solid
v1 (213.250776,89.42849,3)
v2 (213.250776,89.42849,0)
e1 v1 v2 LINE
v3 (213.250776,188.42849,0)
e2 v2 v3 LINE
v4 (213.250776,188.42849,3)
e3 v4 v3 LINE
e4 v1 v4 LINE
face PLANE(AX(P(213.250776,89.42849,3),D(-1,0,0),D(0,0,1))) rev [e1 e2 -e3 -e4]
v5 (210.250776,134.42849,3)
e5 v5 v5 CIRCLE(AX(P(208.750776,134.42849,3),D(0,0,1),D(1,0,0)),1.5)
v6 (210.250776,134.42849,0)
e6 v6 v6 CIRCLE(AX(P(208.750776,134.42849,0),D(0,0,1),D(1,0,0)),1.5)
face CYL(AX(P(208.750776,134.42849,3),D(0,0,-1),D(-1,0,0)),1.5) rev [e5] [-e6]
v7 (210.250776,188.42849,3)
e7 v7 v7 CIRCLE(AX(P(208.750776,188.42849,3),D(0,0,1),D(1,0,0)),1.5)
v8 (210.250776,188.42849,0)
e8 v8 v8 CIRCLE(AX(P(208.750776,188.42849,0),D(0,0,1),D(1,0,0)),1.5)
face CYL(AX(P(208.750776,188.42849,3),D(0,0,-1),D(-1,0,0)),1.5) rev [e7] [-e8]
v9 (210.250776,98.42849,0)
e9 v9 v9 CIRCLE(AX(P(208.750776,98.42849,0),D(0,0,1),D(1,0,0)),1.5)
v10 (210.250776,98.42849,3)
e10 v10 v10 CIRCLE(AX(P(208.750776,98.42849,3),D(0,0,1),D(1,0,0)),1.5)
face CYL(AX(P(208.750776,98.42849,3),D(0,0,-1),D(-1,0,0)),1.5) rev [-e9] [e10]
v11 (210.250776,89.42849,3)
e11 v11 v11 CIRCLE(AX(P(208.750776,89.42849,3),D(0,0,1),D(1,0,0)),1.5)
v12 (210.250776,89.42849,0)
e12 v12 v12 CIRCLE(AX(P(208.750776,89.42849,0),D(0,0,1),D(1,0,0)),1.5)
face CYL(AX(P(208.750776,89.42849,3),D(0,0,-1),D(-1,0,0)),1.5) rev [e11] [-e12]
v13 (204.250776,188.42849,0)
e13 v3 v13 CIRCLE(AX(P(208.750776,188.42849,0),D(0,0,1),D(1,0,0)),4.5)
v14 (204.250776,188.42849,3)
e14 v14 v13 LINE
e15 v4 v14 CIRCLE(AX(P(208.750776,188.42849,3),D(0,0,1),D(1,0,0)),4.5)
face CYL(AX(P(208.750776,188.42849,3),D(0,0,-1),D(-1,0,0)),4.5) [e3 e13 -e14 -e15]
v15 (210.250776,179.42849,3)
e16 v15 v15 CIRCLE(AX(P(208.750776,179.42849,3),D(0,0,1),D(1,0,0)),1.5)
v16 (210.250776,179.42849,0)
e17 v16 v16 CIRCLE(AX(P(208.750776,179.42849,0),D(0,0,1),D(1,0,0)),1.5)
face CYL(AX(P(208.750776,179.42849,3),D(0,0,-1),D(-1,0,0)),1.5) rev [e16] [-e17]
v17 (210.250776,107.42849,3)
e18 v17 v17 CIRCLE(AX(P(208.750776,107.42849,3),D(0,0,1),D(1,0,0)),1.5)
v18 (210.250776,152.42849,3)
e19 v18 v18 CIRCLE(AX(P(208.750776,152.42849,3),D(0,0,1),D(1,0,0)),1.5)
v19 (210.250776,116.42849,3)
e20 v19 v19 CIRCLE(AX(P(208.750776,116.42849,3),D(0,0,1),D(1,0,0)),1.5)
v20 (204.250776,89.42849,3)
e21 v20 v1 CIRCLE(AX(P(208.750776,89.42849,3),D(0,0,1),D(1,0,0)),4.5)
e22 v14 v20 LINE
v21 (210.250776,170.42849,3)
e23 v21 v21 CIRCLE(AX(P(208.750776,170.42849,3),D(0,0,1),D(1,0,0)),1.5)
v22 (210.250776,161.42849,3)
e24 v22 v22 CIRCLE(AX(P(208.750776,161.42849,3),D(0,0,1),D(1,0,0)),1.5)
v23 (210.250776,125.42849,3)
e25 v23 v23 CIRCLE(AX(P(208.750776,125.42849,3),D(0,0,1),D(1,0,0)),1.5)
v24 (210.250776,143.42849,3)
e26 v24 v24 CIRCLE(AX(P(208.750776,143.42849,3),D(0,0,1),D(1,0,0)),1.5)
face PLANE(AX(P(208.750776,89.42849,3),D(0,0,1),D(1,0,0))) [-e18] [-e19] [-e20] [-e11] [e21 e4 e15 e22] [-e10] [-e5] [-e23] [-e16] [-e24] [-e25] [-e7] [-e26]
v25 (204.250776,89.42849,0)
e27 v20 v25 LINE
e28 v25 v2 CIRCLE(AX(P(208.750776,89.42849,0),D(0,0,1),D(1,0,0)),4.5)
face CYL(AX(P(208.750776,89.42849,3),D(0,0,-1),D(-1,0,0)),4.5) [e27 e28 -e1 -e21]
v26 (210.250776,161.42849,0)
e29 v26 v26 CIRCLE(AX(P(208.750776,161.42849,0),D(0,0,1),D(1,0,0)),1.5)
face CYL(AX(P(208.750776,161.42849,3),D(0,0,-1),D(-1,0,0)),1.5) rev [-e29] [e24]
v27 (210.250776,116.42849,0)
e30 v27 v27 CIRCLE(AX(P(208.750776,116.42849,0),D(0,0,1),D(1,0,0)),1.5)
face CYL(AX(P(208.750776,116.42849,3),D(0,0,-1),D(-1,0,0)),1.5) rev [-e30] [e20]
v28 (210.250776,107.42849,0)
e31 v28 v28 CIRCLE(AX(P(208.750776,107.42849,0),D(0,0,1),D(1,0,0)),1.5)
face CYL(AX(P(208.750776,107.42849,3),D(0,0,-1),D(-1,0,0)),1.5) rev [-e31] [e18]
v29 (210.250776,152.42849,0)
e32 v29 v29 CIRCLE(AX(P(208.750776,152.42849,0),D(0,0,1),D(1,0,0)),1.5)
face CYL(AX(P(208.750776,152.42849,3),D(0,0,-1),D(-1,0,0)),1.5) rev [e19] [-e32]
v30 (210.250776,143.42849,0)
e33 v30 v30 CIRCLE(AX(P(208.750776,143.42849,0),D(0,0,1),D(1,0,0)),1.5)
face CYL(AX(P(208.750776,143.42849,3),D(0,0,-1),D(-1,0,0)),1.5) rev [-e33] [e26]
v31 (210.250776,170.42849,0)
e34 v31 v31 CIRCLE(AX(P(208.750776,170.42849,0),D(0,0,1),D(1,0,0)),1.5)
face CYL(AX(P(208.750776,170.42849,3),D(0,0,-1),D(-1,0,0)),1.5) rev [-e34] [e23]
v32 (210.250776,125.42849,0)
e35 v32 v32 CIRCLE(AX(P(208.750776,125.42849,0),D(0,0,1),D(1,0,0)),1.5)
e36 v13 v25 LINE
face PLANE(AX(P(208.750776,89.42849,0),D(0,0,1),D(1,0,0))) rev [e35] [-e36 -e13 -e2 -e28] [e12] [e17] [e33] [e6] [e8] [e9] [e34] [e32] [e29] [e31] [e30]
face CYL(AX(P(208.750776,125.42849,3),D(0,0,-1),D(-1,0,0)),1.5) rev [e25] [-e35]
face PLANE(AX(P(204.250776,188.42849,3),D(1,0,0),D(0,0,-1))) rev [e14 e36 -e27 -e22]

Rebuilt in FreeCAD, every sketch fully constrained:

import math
import FreeCAD as App
import Part
import Sketcher

V = App.Vector

doc = App.newDocument("Part")
body = doc.addObject("PartDesign::Body", "Body")

sketch1 = body.newObject("Sketcher::SketchObject", "Sketch")
sketch1.AttachmentSupport = (doc.getObject("XY_Plane"), [""])
sketch1.MapMode = "FlatFace"
sketch1.addGeometry([
    Part.LineSegment(V(213.3, 89.4, 0), V(213.3, 188.4, 0)),
    Part.ArcOfCircle(Part.Circle(V(208.8, 188.4, 0), V(0, 0, 1), 4.5), math.radians(0), math.radians(180)),
    Part.LineSegment(V(204.3, 188.4, 0), V(204.3, 89.4, 0)),
    Part.ArcOfCircle(Part.Circle(V(208.8, 89.4, 0), V(0, 0, 1), 4.5), math.radians(180), math.radians(360)),
    Part.Circle(V(208.8, 89.4, 0), V(0, 0, 1), 1.5),
    Part.Circle(V(208.8, 98.4, 0), V(0, 0, 1), 1.5),
    Part.Circle(V(208.8, 107.4, 0), V(0, 0, 1), 1.5),
    Part.Circle(V(208.8, 116.4, 0), V(0, 0, 1), 1.5),
    Part.Circle(V(208.8, 125.4, 0), V(0, 0, 1), 1.5),
    Part.Circle(V(208.8, 134.4, 0), V(0, 0, 1), 1.5),
    Part.Circle(V(208.8, 143.4, 0), V(0, 0, 1), 1.5),
    Part.Circle(V(208.8, 152.4, 0), V(0, 0, 1), 1.5),
    Part.Circle(V(208.8, 161.4, 0), V(0, 0, 1), 1.5),
    Part.Circle(V(208.8, 170.4, 0), V(0, 0, 1), 1.5),
    Part.Circle(V(208.8, 179.4, 0), V(0, 0, 1), 1.5),
    Part.Circle(V(208.8, 188.4, 0), V(0, 0, 1), 1.5),
], False)
sketch1.addConstraint([
    Sketcher.Constraint("Tangent", 0, 2, 1, 1),
    Sketcher.Constraint("Tangent", 1, 2, 2, 1),
    Sketcher.Constraint("Tangent", 2, 2, 3, 1),
    Sketcher.Constraint("Tangent", 3, 2, 0, 1),
    Sketcher.Constraint("Vertical", 0),
    Sketcher.Constraint("Vertical", 2),
    Sketcher.Constraint("Coincident", 4, 3, 3, 3),
    Sketcher.Constraint("Coincident", 15, 3, 1, 3),
    Sketcher.Constraint("Equal", 4, 5),
    Sketcher.Constraint("Equal", 5, 6),
    Sketcher.Constraint("Equal", 6, 7),
    Sketcher.Constraint("Equal", 7, 8),
    Sketcher.Constraint("Equal", 8, 9),
    Sketcher.Constraint("Equal", 9, 10),
    Sketcher.Constraint("Equal", 10, 11),
    Sketcher.Constraint("Equal", 11, 12),
    Sketcher.Constraint("Equal", 12, 13),
    Sketcher.Constraint("Equal", 13, 14),
    Sketcher.Constraint("Equal", 14, 15),
    Sketcher.Constraint("Vertical", 4, 3, 5, 3),
    Sketcher.Constraint("Vertical", 5, 3, 6, 3),
    Sketcher.Constraint("Vertical", 6, 3, 7, 3),
    Sketcher.Constraint("Vertical", 7, 3, 8, 3),
    Sketcher.Constraint("Vertical", 8, 3, 9, 3),
    Sketcher.Constraint("Vertical", 9, 3, 10, 3),
    Sketcher.Constraint("Vertical", 10, 3, 11, 3),
    Sketcher.Constraint("Vertical", 11, 3, 12, 3),
    Sketcher.Constraint("Vertical", 12, 3, 13, 3),
    Sketcher.Constraint("Vertical", 13, 3, 14, 3),
    Sketcher.Constraint("Diameter", 4, 3.0),
    Sketcher.Constraint("Radius", 1, 4.5),
    Sketcher.Constraint("DistanceY", 0, 1, 0, 2, 99.0),
    Sketcher.Constraint("DistanceY", 3, 3, 5, 3, 9.0),
    Sketcher.Constraint("DistanceY", 5, 3, 6, 3, 9.0),
    Sketcher.Constraint("DistanceY", 6, 3, 7, 3, 9.0),
    Sketcher.Constraint("DistanceY", 7, 3, 8, 3, 9.0),
    Sketcher.Constraint("DistanceY", 8, 3, 9, 3, 9.0),
    Sketcher.Constraint("DistanceY", 9, 3, 10, 3, 9.0),
    Sketcher.Constraint("DistanceY", 10, 3, 11, 3, 9.0),
    Sketcher.Constraint("DistanceY", 11, 3, 12, 3, 9.0),
    Sketcher.Constraint("DistanceY", 12, 3, 13, 3, 9.0),
    Sketcher.Constraint("DistanceY", 14, 3, 1, 3, 9.0),
    Sketcher.Constraint("DistanceY", -1, 1, 1, 3, 188.42849),
    Sketcher.Constraint("DistanceX", -1, 1, 1, 3, 208.750776),
])
pad1 = body.newObject("PartDesign::Pad", "Pad")
pad1.Profile = sketch1
pad1.Length = 3

doc.recompute()
